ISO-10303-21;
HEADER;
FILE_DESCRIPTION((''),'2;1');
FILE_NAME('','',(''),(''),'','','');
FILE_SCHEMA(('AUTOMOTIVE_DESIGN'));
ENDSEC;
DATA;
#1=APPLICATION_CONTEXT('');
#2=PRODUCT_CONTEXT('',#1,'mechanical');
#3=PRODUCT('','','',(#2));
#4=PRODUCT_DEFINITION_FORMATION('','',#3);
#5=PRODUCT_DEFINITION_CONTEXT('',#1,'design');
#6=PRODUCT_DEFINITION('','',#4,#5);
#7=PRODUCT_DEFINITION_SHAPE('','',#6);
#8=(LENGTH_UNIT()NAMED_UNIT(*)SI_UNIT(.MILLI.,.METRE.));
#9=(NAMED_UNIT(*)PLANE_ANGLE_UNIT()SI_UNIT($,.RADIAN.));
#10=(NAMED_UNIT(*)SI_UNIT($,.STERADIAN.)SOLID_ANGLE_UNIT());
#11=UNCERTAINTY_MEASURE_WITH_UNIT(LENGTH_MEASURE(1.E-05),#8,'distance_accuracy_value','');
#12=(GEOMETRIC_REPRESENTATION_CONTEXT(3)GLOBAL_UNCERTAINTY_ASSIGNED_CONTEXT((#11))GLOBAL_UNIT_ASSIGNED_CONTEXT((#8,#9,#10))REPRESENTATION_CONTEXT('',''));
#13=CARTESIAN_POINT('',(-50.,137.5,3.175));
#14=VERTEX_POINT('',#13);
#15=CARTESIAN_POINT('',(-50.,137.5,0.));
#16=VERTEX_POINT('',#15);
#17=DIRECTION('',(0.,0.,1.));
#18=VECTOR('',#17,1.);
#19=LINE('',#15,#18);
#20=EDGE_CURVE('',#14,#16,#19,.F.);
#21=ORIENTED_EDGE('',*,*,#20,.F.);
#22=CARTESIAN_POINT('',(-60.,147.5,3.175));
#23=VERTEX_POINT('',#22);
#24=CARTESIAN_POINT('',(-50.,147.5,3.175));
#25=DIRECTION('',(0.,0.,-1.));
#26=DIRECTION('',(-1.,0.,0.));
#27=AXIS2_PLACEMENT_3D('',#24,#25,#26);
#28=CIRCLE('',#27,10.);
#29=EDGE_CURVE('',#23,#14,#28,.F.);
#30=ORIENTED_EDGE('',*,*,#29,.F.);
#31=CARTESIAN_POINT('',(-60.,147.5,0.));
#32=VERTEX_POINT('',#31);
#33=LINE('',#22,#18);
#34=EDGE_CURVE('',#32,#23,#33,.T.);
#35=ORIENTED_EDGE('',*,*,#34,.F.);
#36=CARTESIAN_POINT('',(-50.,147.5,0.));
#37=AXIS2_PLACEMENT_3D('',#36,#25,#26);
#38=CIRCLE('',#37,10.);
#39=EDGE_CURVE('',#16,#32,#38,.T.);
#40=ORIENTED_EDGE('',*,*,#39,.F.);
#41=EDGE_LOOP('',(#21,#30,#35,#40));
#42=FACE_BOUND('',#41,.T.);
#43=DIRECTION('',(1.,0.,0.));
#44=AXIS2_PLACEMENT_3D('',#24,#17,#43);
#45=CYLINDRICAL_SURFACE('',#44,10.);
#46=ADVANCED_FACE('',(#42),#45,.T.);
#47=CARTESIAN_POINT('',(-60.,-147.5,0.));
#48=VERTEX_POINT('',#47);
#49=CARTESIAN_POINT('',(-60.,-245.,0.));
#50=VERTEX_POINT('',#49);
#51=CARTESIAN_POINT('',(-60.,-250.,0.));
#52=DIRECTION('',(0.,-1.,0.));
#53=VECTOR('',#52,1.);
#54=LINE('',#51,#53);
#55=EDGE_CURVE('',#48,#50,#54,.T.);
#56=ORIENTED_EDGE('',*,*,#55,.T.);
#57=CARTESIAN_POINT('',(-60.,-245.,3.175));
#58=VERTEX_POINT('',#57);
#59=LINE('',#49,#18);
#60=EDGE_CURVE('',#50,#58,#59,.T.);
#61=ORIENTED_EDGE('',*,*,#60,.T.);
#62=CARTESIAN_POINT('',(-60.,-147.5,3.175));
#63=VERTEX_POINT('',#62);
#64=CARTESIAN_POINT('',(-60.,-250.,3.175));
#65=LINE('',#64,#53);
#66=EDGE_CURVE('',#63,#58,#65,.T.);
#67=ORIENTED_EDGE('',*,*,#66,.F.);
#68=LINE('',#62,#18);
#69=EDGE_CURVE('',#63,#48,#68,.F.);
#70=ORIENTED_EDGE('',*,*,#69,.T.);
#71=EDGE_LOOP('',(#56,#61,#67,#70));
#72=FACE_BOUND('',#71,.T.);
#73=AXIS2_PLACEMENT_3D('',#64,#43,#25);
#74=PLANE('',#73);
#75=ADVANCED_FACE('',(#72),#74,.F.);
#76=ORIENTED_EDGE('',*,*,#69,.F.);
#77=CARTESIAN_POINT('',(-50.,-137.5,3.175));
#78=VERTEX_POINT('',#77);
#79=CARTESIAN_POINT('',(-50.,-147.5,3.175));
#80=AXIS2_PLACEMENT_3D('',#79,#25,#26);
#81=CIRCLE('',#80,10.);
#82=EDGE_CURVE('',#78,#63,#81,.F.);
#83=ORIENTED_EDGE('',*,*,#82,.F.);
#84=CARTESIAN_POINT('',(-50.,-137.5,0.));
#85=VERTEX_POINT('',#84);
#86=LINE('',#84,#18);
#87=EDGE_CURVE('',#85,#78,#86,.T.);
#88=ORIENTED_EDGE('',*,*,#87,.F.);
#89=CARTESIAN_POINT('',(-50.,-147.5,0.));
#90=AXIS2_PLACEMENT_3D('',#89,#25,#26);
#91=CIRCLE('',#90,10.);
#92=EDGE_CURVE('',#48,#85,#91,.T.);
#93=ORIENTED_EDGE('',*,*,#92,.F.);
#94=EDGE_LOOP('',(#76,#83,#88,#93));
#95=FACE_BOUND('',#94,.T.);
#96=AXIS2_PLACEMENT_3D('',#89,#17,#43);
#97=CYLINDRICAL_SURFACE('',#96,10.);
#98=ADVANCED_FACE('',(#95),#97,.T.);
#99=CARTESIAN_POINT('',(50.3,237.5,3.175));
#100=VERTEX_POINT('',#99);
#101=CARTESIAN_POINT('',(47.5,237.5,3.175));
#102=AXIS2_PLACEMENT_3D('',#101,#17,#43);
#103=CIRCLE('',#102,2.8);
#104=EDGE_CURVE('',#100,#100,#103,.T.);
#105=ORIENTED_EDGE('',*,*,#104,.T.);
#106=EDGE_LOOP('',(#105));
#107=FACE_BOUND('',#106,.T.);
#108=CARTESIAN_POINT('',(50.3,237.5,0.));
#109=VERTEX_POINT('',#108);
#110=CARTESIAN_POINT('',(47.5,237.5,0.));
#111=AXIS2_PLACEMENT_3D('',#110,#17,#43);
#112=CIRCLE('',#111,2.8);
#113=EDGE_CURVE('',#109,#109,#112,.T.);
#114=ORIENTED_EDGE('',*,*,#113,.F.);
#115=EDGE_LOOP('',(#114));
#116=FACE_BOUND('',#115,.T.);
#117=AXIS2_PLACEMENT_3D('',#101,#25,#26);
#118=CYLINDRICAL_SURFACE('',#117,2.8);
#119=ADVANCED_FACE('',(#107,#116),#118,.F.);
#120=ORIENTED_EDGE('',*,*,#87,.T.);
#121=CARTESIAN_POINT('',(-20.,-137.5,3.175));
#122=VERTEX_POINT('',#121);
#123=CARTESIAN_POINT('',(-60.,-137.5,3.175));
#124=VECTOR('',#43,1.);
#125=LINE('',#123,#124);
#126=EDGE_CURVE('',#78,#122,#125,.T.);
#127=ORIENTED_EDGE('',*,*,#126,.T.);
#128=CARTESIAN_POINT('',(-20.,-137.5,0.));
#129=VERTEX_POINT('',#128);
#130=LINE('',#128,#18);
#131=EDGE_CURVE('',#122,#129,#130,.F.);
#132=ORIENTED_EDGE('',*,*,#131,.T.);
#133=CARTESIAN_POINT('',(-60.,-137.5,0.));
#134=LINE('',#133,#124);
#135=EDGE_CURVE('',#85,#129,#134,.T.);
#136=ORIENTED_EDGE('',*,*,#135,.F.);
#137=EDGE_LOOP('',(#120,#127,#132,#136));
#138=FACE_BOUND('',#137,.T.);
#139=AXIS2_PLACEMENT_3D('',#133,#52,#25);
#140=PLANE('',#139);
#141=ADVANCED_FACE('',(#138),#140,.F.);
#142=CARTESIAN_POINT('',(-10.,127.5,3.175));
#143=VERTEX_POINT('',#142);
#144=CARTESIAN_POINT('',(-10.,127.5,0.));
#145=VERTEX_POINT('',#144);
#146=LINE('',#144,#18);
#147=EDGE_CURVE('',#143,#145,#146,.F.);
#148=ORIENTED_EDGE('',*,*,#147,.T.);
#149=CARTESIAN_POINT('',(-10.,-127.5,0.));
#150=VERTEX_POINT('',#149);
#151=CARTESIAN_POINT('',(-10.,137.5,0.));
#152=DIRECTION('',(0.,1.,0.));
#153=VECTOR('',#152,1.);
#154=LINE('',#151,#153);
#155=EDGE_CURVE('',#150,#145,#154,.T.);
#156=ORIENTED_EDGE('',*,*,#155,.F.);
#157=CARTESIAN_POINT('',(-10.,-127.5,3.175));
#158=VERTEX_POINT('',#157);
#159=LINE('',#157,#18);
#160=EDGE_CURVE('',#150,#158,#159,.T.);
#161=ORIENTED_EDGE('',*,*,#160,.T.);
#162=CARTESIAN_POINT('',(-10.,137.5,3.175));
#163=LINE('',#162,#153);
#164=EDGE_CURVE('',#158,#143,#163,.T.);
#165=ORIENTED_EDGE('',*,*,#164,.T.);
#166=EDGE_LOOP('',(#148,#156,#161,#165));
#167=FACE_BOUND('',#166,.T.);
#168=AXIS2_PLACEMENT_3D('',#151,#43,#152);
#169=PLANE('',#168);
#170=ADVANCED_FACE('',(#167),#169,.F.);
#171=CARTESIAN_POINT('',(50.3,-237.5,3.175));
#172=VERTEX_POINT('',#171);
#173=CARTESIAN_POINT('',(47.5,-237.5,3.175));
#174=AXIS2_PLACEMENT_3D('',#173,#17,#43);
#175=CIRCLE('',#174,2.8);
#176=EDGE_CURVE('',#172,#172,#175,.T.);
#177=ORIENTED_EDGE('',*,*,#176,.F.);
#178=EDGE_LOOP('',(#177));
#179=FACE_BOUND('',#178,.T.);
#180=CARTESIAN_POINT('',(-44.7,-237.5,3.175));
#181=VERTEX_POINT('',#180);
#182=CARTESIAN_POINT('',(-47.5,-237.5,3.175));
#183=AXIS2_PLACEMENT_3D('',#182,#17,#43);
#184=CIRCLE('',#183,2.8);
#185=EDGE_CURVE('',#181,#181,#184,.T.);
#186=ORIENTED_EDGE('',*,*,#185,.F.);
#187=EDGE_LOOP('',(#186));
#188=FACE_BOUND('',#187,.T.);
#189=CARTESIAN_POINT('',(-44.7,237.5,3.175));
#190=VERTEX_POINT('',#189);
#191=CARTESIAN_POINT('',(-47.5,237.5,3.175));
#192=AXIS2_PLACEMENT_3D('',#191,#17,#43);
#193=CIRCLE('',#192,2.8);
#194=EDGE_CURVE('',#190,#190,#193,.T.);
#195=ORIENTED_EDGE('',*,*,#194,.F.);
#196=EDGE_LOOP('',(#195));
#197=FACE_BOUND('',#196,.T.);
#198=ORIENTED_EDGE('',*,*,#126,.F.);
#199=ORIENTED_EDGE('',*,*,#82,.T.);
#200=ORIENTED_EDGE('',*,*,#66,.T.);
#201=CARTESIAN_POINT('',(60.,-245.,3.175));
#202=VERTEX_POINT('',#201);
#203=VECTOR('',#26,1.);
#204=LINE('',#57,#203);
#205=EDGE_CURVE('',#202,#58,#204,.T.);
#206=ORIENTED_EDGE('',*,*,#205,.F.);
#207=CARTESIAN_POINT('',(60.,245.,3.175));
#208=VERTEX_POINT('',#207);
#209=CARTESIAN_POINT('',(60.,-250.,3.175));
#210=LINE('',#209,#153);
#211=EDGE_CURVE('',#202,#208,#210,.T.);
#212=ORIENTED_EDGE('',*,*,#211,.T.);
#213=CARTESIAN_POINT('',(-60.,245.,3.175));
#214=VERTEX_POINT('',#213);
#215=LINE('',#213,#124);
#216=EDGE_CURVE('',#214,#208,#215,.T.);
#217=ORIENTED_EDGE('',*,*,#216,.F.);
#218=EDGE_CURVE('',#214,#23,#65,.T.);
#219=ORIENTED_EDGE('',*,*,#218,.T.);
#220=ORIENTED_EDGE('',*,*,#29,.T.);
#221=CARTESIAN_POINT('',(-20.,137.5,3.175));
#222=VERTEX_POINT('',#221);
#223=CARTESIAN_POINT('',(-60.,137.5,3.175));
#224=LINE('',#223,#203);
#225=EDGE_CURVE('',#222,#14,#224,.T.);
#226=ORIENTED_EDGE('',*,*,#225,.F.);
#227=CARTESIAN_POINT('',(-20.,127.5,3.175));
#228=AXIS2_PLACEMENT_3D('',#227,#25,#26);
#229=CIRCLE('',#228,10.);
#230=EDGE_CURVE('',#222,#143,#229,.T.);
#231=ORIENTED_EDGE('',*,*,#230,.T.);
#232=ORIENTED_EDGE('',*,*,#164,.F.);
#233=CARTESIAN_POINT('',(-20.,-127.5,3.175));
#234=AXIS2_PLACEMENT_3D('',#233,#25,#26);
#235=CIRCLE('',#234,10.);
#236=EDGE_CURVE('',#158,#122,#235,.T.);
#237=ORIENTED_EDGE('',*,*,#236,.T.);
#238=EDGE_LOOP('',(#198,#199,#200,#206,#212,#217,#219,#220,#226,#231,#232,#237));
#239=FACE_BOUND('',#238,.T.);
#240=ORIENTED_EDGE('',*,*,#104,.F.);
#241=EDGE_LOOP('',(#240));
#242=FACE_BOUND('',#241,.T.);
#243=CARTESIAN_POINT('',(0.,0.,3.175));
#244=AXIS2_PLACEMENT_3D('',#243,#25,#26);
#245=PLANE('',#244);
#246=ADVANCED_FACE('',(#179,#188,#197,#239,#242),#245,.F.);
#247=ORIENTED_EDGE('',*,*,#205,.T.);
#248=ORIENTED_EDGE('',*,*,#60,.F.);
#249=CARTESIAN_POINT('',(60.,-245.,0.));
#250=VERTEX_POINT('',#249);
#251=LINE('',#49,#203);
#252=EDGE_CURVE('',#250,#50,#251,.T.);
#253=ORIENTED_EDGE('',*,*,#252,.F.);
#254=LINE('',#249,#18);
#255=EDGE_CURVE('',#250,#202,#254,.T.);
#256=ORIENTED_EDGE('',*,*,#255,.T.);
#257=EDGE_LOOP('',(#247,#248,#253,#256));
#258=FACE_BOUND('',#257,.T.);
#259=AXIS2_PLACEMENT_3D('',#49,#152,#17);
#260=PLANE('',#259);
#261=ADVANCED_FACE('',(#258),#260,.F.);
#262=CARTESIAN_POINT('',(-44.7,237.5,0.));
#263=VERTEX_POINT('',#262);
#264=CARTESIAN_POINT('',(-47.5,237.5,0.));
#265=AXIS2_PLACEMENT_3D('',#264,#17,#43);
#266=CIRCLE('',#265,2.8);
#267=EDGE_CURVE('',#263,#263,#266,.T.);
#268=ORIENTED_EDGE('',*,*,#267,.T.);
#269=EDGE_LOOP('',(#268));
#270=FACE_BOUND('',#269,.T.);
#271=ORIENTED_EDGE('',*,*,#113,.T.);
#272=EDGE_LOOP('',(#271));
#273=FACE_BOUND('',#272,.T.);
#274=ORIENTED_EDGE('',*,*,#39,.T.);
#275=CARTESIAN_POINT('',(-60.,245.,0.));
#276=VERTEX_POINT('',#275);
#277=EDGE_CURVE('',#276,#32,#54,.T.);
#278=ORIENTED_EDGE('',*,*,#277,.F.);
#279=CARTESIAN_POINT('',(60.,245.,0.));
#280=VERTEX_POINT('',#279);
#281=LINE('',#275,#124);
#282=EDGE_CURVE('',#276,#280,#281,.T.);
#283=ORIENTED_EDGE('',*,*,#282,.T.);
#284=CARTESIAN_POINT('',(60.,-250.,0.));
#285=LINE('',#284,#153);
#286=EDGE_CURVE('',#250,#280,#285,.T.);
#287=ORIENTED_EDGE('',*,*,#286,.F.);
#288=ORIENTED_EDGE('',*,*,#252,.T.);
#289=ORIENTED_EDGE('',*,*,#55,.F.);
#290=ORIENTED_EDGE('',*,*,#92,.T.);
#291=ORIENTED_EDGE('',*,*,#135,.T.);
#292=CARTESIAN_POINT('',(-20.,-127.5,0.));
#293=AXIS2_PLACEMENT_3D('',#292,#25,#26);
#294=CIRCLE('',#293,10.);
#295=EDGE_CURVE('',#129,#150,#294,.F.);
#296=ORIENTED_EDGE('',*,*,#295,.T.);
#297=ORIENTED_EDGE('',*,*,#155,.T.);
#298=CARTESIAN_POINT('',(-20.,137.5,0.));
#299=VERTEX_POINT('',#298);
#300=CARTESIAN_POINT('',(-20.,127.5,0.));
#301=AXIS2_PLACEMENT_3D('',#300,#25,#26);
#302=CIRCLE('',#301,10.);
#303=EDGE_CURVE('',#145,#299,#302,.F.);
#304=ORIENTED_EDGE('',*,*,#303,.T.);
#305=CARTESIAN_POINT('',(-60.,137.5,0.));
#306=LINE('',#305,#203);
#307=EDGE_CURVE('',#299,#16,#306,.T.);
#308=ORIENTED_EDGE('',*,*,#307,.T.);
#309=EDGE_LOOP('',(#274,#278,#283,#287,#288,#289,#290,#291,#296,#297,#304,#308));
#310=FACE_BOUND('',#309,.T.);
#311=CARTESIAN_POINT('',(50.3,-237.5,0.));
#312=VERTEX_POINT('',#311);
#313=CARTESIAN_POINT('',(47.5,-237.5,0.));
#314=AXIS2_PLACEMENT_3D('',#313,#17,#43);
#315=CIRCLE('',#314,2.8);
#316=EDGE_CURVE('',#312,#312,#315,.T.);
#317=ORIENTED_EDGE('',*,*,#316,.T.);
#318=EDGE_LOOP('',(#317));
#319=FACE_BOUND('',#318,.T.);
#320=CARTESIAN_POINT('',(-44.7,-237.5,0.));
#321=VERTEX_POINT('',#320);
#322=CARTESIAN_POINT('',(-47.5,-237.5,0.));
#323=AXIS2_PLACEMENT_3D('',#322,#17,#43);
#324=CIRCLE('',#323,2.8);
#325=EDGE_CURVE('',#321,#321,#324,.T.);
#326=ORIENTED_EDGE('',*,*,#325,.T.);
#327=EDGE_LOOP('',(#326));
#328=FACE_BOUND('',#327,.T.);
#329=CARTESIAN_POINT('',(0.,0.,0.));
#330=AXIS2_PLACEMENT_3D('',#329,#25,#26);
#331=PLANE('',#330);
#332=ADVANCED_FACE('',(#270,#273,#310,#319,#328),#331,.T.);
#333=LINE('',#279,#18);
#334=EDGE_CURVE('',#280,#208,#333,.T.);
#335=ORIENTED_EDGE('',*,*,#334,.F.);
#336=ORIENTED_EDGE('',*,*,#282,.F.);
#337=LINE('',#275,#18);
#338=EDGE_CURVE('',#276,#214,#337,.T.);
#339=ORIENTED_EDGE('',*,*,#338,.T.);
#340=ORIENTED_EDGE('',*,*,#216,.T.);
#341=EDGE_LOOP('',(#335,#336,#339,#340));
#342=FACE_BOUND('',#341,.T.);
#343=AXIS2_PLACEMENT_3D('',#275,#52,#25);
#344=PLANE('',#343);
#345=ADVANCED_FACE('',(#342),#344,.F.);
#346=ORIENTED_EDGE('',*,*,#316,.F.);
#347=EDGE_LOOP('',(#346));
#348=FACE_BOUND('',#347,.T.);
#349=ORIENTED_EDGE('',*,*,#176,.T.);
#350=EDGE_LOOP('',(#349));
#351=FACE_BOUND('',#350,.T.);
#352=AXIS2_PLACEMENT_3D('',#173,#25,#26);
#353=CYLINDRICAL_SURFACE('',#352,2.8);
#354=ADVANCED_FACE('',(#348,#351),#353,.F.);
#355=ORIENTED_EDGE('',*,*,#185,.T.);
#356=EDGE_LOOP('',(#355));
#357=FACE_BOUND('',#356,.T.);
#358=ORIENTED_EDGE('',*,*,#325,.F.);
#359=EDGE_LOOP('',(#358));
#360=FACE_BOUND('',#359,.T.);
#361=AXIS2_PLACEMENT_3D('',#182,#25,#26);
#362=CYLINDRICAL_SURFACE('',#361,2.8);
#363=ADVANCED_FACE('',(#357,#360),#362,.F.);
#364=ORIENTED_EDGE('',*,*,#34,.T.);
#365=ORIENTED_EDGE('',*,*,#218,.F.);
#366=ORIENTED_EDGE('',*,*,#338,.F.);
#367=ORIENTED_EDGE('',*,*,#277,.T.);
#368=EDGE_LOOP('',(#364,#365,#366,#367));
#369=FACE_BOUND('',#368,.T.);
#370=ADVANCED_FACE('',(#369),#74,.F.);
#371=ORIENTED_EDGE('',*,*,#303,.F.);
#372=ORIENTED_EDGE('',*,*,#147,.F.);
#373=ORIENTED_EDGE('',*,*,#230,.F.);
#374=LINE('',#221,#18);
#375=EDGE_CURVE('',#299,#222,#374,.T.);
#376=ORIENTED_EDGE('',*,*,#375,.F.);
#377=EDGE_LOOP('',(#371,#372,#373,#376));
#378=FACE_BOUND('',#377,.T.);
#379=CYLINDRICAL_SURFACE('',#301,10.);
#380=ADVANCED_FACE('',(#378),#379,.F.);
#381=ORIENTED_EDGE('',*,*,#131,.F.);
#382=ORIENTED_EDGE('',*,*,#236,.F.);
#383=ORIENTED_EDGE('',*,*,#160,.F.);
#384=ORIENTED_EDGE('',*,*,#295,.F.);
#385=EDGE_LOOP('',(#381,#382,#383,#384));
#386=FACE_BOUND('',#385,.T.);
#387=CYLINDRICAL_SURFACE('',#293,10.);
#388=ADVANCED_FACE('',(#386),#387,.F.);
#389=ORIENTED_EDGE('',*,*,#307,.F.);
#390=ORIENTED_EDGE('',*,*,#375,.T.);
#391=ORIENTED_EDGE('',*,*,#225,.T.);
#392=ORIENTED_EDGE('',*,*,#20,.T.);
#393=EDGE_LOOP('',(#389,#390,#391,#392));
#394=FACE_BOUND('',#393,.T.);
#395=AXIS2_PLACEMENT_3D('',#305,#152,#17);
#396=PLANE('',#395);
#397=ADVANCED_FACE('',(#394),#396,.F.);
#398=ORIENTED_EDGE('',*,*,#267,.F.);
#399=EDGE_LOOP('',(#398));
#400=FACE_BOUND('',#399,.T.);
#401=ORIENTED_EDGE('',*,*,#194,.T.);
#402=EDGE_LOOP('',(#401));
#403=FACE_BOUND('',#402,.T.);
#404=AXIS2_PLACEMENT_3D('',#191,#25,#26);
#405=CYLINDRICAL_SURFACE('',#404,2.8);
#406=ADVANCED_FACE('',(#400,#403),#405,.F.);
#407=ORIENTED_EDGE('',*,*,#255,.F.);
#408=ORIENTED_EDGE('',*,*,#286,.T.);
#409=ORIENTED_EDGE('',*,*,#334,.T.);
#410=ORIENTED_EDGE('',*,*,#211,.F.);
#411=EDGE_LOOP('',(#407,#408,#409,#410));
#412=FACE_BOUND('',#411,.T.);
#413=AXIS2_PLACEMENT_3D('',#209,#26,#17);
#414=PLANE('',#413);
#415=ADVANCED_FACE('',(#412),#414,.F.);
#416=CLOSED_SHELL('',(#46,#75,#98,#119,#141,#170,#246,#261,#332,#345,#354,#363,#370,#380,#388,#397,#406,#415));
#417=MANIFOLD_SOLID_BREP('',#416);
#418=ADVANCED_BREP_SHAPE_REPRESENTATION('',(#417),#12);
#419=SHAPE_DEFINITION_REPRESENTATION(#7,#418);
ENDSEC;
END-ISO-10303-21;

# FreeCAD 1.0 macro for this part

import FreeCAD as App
import Part
import Sketcher
Q = App.Units.Quantity


def edges_at(feature, points):
    """Names of the edges that pass closest to the given points."""
    edges = feature.Shape.Edges
    near = lambda p: min(range(len(edges)), key=lambda i: edges[i].distToShape(Part.Vertex(*p))[0])
    return sorted({f"Edge{near(p) + 1}" for p in points})

doc = App.newDocument("Part")
body = doc.addObject("PartDesign::Body", "Body")

# Sketch on XY plane
sketch1 = body.newObject("Sketcher::SketchObject", "Sketch")
sketch1.AttachmentSupport = (doc.getObject("XY_Plane"), [""])
sketch1.MapMode = "FlatFace"
sketch1.addGeometry([
    Part.LineSegment(App.Vector(-60, -250, 0), App.Vector(60, -250, 0)),  # 0
    Part.LineSegment(App.Vector(60, -250, 0), App.Vector(60, 250, 0)),  # 1
    Part.LineSegment(App.Vector(60, 250, 0), App.Vector(-60, 250, 0)),  # 2
    Part.LineSegment(App.Vector(-60, 250, 0), App.Vector(-60, -250, 0)),  # 3
    Part.Circle(App.Vector(47.5, -237.5, 0), App.Vector(0, 0, 1), 2.8),  # 4
    Part.Circle(App.Vector(47.5, 237.5, 0), App.Vector(0, 0, 1), 2.8),  # 5
    Part.Circle(App.Vector(-47.5, -237.5, 0), App.Vector(0, 0, 1), 2.8),  # 6
    Part.Circle(App.Vector(-47.5, 237.5, 0), App.Vector(0, 0, 1), 2.8),  # 7
], False)
sketch1.addConstraint([
    Sketcher.Constraint("Coincident", 0, 2, 1, 1),
    Sketcher.Constraint("Coincident", 1, 2, 2, 1),
    Sketcher.Constraint("Coincident", 2, 2, 3, 1),
    Sketcher.Constraint("Coincident", 3, 2, 0, 1),
    Sketcher.Constraint("Horizontal", 0),
    Sketcher.Constraint("Vertical", 1),
    Sketcher.Constraint("Horizontal", 2),
    Sketcher.Constraint("Vertical", 3),
    Sketcher.Constraint("Equal", 4, 5),
    Sketcher.Constraint("Equal", 5, 6),
    Sketcher.Constraint("Equal", 6, 7),
    Sketcher.Constraint("Symmetric", 5, 3, 6, 3, -1, 1),
    Sketcher.Constraint("Symmetric", 4, 3, 7, 3, -1, 1),
    Sketcher.Constraint("Symmetric", 0, 2, 2, 2, -1, 1),
    Sketcher.Constraint("Symmetric", 4, 3, 6, 3, -2),
    Sketcher.Constraint("Diameter", 4, Q("5.6 mm")),
    Sketcher.Constraint("DistanceX", 0, 1, 0, 2, Q("120 mm")),
    Sketcher.Constraint("DistanceY", 1, 1, 1, 2, Q("500 mm")),
    Sketcher.Constraint("DistanceY", 4, 3, 5, 3, Q("475 mm")),
    Sketcher.Constraint("DistanceX", 6, 3, 4, 3, Q("95 mm")),
])
pad1 = body.newObject("PartDesign::Pad", "Pad")
pad1.Profile = sketch1
pad1.Length = 3.175

# Sketch on XY plane
sketch2 = body.newObject("Sketcher::SketchObject", "Sketch001")
sketch2.AttachmentSupport = (doc.getObject("XY_Plane"), [""])
sketch2.MapMode = "FlatFace"
sketch2.AttachmentOffset = App.Placement(App.Vector(0, 0, 3.175), App.Rotation())
sketch2.addGeometry([
    Part.LineSegment(App.Vector(-60, 138, 0), App.Vector(-60, -138, 0)),
    Part.LineSegment(App.Vector(-60, -138, 0), App.Vector(-10, -138, 0)),
    Part.LineSegment(App.Vector(-10, -138, 0), App.Vector(-10, 138, 0)),
    Part.LineSegment(App.Vector(-10, 138, 0), App.Vector(-60, 138, 0)),
], False)
sketch2.addConstraint([
    Sketcher.Constraint("Coincident", 0, 2, 1, 1),
    Sketcher.Constraint("Coincident", 1, 2, 2, 1),
    Sketcher.Constraint("Coincident", 2, 2, 3, 1),
    Sketcher.Constraint("Coincident", 3, 2, 0, 1),
    Sketcher.Constraint("Vertical", 0),
    Sketcher.Constraint("Horizontal", 1),
    Sketcher.Constraint("Vertical", 2),
    Sketcher.Constraint("Horizontal", 3),
    Sketcher.Constraint("DistanceX", 1, 1, 1, 2, Q("50 mm")),
    Sketcher.Constraint("DistanceY", 0, 2, 0, 1, Q("275 mm")),
    Sketcher.Constraint("DistanceX", 0, 2, -1, 1, Q("60 mm")),
    Sketcher.Constraint("DistanceY", 0, 2, -1, 1, Q("137.5 mm")),
])
pocket1 = body.newObject("PartDesign::Pocket", "Pocket")
pocket1.Profile = sketch2
pocket1.Type = "ThroughAll"
doc.recompute()

fillet = body.newObject("PartDesign::Fillet", "Fillet")
fillet.Base = (pocket1, edges_at(pocket1, [
    (-60, -137.5, 1.587),
    (-60, 137.5, 1.587),
    (-10, 137.5, 1.587),
    (-10, -137.5, 1.587),
]))
fillet.Radius = 10

# Sketch on XY plane
sketch3 = body.newObject("Sketcher::SketchObject", "Sketch002")
sketch3.AttachmentSupport = (doc.getObject("XY_Plane"), [""])
sketch3.MapMode = "FlatFace"
sketch3.AttachmentOffset = App.Placement(App.Vector(0, 0, 3.175), App.Rotation())
sketch3.addGeometry([
    Part.LineSegment(App.Vector(-60, 250, 0), App.Vector(-60, 245, 0)),  # 0
    Part.LineSegment(App.Vector(-60, 245, 0), App.Vector(60, 245, 0)),  # 1
    Part.LineSegment(App.Vector(60, 245, 0), App.Vector(60, 250, 0)),  # 2
    Part.LineSegment(App.Vector(60, 250, 0), App.Vector(-60, 250, 0)),  # 3
    Part.LineSegment(App.Vector(-60, -245, 0), App.Vector(-60, -250, 0)),  # 4
    Part.LineSegment(App.Vector(-60, -250, 0), App.Vector(60, -250, 0)),  # 5
    Part.LineSegment(App.Vector(60, -250, 0), App.Vector(60, -245, 0)),  # 6
    Part.LineSegment(App.Vector(60, -245, 0), App.Vector(-60, -245, 0)),  # 7
], False)
sketch3.addConstraint([
    Sketcher.Constraint("Coincident", 0, 2, 1, 1),
    Sketcher.Constraint("Coincident", 1, 2, 2, 1),
    Sketcher.Constraint("Coincident", 2, 2, 3, 1),
    Sketcher.Constraint("Coincident", 3, 2, 0, 1),
    Sketcher.Constraint("Coincident", 4, 2, 5, 1),
    Sketcher.Constraint("Coincident", 5, 2, 6, 1),
    Sketcher.Constraint("Coincident", 6, 2, 7, 1),
    Sketcher.Constraint("Coincident", 7, 2, 4, 1),
    Sketcher.Constraint("Vertical", 0),
    Sketcher.Constraint("Horizontal", 1),
    Sketcher.Constraint("Vertical", 2),
    Sketcher.Constraint("Horizontal", 3),
    Sketcher.Constraint("Vertical", 4),
    Sketcher.Constraint("Horizontal", 5),
    Sketcher.Constraint("Vertical", 6),
    Sketcher.Constraint("Horizontal", 7),
    Sketcher.Constraint("Symmetric", 2, 2, 4, 2, -1, 1),
    Sketcher.Constraint("Symmetric", 0, 2, 6, 2, -1, 1),
    Sketcher.Constraint("Vertical", 3, 2, 4, 2),
    Sketcher.Constraint("DistanceX", 1, 1, 1, 2, Q("120 mm")),
    Sketcher.Constraint("DistanceY", 0, 2, 0, 1, Q("5 mm")),
    Sketcher.Constraint("DistanceY", -1, 1, 0, 2, Q("245 mm")),
])
pocket2 = body.newObject("PartDesign::Pocket", "Pocket001")
pocket2.Profile = sketch3
pocket2.Type = "ThroughAll"

doc.recompute()
